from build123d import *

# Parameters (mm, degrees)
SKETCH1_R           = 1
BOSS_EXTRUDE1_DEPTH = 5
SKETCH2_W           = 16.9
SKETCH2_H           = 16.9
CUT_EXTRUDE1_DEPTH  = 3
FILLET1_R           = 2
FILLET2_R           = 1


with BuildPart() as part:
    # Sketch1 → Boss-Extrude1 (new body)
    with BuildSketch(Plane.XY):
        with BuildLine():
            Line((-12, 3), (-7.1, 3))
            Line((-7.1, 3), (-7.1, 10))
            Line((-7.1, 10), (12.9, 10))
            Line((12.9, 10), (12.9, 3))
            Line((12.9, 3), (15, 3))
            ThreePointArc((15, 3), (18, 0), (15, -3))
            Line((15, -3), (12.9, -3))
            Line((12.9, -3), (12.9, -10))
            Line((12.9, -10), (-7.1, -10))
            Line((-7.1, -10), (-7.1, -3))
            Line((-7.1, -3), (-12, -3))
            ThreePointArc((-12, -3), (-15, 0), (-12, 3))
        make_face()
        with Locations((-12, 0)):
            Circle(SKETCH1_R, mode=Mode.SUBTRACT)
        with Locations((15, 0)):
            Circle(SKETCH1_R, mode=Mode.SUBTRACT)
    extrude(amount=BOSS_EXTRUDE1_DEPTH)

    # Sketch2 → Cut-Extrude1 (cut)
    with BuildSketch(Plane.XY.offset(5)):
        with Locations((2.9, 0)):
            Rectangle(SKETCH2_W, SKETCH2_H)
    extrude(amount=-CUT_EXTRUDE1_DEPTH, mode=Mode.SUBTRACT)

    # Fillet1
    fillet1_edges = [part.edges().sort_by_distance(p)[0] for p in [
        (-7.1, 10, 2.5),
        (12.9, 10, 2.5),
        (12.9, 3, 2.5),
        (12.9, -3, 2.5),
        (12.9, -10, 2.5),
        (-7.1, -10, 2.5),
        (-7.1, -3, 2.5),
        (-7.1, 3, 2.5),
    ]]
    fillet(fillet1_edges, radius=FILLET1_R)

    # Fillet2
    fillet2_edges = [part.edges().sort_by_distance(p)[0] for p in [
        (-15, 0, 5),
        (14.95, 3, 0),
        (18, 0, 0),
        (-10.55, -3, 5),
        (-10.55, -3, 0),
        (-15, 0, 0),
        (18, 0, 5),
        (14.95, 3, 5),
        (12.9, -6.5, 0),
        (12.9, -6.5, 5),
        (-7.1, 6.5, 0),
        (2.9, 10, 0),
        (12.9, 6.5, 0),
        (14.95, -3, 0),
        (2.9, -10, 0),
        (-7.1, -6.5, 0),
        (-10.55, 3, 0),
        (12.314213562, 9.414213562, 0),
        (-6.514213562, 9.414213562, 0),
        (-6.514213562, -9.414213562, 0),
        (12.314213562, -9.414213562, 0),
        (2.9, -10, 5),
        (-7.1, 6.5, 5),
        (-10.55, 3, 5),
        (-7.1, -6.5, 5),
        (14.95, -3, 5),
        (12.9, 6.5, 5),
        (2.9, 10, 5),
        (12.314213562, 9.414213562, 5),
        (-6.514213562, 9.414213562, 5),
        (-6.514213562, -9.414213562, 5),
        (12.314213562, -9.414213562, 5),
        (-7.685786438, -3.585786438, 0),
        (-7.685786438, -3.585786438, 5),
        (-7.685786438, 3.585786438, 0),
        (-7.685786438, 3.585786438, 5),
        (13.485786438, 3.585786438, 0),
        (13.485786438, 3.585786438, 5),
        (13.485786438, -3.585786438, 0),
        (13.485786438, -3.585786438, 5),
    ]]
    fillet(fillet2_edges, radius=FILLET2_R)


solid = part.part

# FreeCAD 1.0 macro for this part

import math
import FreeCAD as App
import Part
import Sketcher
from FreeCAD import Vector


def edges_at(feature, points):
    """Names of the edges that pass closest to the given points."""
    edges = feature.Shape.Edges
    near = lambda p: min(range(len(edges)), key=lambda i: edges[i].distToShape(Part.Vertex(*p))[0])
    return sorted({f"Edge{near(p) + 1}" for p in points})

doc = App.newDocument("Part")
params = doc.addObject("Spreadsheet::Sheet", "Params")
for row, (alias, value) in enumerate([
    ("sketch1_diameter", "2 mm"),
    ("sketch1_radius", "3 mm"),
    ("sketch1_width", "20 mm"),
    ("sketch1_height", "7 mm"),
    ("sketch1_width2", "4.9 mm"),
    ("pad1_length", "5 mm"),
    ("sketch2_width", "16.9 mm"),
    ("pocket1_length", "3 mm"),
    ("fillet_radius", "2 mm"),
    ("fillet2_radius", "1 mm"),
], start=1):
    params.set(f"A{row}", alias)
    params.set(f"B{row}", "=" + value)
    params.setAlias(f"B{row}", alias)

body = doc.addObject("PartDesign::Body", "Body")

# Sketch on XY plane
sketch1 = doc.addObject("Sketcher::SketchObject", "Sketch")
body.addObject(sketch1)
sketch1.AttachmentSupport = (doc.XY_Plane, [""])
sketch1.MapMode = "FlatFace"
sketch1.addGeometry(Part.LineSegment(Vector(-7.1, 3, 0), Vector(-12, 3, 0)), False)
sketch1.addGeometry(Part.ArcOfCircle(Part.Circle(Vector(-12, 0, 0), Vector(0, 0, 1), 3), math.radians(90), math.radians(270)), False)
sketch1.addGeometry(Part.LineSegment(Vector(-12, -3, 0), Vector(-7.1, -3, 0)), False)
sketch1.addGeometry(Part.LineSegment(Vector(-7.1, -3, 0), Vector(-7.1, -10, 0)), False)
sketch1.addGeometry(Part.LineSegment(Vector(-7.1, -10, 0), Vector(12.9, -10, 0)), False)
sketch1.addGeometry(Part.LineSegment(Vector(12.9, -10, 0), Vector(12.9, -3, 0)), False)
sketch1.addGeometry(Part.LineSegment(Vector(12.9, -3, 0), Vector(15, -3, 0)), False)
sketch1.addGeometry(Part.ArcOfCircle(Part.Circle(Vector(15, 0, 0), Vector(0, 0, 1), 3), math.radians(-90), math.radians(90)), False)
sketch1.addGeometry(Part.LineSegment(Vector(15, 3, 0), Vector(12.9, 3, 0)), False)
sketch1.addGeometry(Part.LineSegment(Vector(12.9, 3, 0), Vector(12.9, 10, 0)), False)
sketch1.addGeometry(Part.LineSegment(Vector(12.9, 10, 0), Vector(-7.1, 10, 0)), False)
sketch1.addGeometry(Part.LineSegment(Vector(-7.1, 10, 0), Vector(-7.1, 3, 0)), False)
sketch1.addGeometry(Part.Circle(Vector(15, 0, 0), Vector(0, 0, 1), 1), False)
sketch1.addGeometry(Part.Circle(Vector(-12, 0, 0), Vector(0, 0, 1), 1), False)
sketch1.addConstraint(Sketcher.Constraint("Tangent", 0, 2, 1, 1))
sketch1.addConstraint(Sketcher.Constraint("Tangent", 1, 2, 2, 1))
sketch1.addConstraint(Sketcher.Constraint("Coincident", 2, 2, 3, 1))
sketch1.addConstraint(Sketcher.Constraint("Coincident", 3, 2, 4, 1))
sketch1.addConstraint(Sketcher.Constraint("Coincident", 4, 2, 5, 1))
sketch1.addConstraint(Sketcher.Constraint("Coincident", 5, 2, 6, 1))
sketch1.addConstraint(Sketcher.Constraint("Tangent", 6, 2, 7, 1))
sketch1.addConstraint(Sketcher.Constraint("Tangent", 7, 2, 8, 1))
sketch1.addConstraint(Sketcher.Constraint("Coincident", 8, 2, 9, 1))
sketch1.addConstraint(Sketcher.Constraint("Coincident", 9, 2, 10, 1))
sketch1.addConstraint(Sketcher.Constraint("Coincident", 10, 2, 11, 1))
sketch1.addConstraint(Sketcher.Constraint("Coincident", 11, 2, 0, 1))
sketch1.addConstraint(Sketcher.Constraint("Horizontal", 0))
sketch1.addConstraint(Sketcher.Constraint("Horizontal", 2))
sketch1.addConstraint(Sketcher.Constraint("Vertical", 3))
sketch1.addConstraint(Sketcher.Constraint("Horizontal", 4))
sketch1.addConstraint(Sketcher.Constraint("Vertical", 5))
sketch1.addConstraint(Sketcher.Constraint("Horizontal", 6))
sketch1.addConstraint(Sketcher.Constraint("Horizontal", 8))
sketch1.addConstraint(Sketcher.Constraint("Vertical", 9))
sketch1.addConstraint(Sketcher.Constraint("Horizontal", 10))
sketch1.addConstraint(Sketcher.Constraint("Vertical", 11))
sketch1.addConstraint(Sketcher.Constraint("Coincident", 12, 3, 7, 3))
sketch1.addConstraint(Sketcher.Constraint("Coincident", 13, 3, 1, 3))
sketch1.addConstraint(Sketcher.Constraint("Equal", 1, 7))
sketch1.addConstraint(Sketcher.Constraint("Equal", 12, 13))
sketch1.addConstraint(Sketcher.Constraint("Symmetric", 5, 2, 8, 2, -1))
sketch1.addConstraint(Sketcher.Constraint("Symmetric", 3, 2, 10, 2, -1))
sketch1.addConstraint(Sketcher.Constraint("PointOnObject", 1, 3, -1))
sketch1.addConstraint(Sketcher.Constraint("Diameter", 12, 2.0))
sketch1.addConstraint(Sketcher.Constraint("Radius", 1, 3.0))
sketch1.addConstraint(Sketcher.Constraint("DistanceX", 4, 1, 4, 2, 20.0))
sketch1.addConstraint(Sketcher.Constraint("DistanceY", 3, 2, 3, 1, 7.0))
sketch1.addConstraint(Sketcher.Constraint("DistanceX", 0, 2, 0, 1, 4.9))
sketch1.addConstraint(Sketcher.Constraint("DistanceX", 6, 1, 6, 2, 2.1))
sketch1.addConstraint(Sketcher.Constraint("DistanceX", 1, 3, -1, 1, 12.0))
sketch1.setExpression("Constraints[29]", "Params.sketch1_diameter")
sketch1.setExpression("Constraints[30]", "Params.sketch1_radius")
sketch1.setExpression("Constraints[31]", "Params.sketch1_width")
sketch1.setExpression("Constraints[32]", "Params.sketch1_height")
sketch1.setExpression("Constraints[33]", "Params.sketch1_width2")
pad1 = doc.addObject("PartDesign::Pad", "Pad")
body.addObject(pad1)
pad1.Profile = sketch1
pad1.setExpression("Length", "Params.pad1_length")

# Sketch on XY plane
sketch2 = doc.addObject("Sketcher::SketchObject", "Sketch001")
body.addObject(sketch2)
sketch2.AttachmentSupport = (doc.XY_Plane, [""])
sketch2.MapMode = "FlatFace"
sketch2.AttachmentOffset = App.Placement(Vector(0, 0, 5), App.Rotation())
sketch2.addGeometry(Part.LineSegment(Vector(-5.55, 8.45, 0), Vector(-5.55, -8.45, 0)), False)
sketch2.addGeometry(Part.LineSegment(Vector(-5.55, -8.45, 0), Vector(11.35, -8.45, 0)), False)
sketch2.addGeometry(Part.LineSegment(Vector(11.35, -8.45, 0), Vector(11.35, 8.45, 0)), False)
sketch2.addGeometry(Part.LineSegment(Vector(11.35, 8.45, 0), Vector(-5.55, 8.45, 0)), False)
sketch2.addConstraint(Sketcher.Constraint("Coincident", 0, 2, 1, 1))
sketch2.addConstraint(Sketcher.Constraint("Coincident", 1, 2, 2, 1))
sketch2.addConstraint(Sketcher.Constraint("Coincident", 2, 2, 3, 1))
sketch2.addConstraint(Sketcher.Constraint("Coincident", 3, 2, 0, 1))
sketch2.addConstraint(Sketcher.Constraint("Vertical", 0))
sketch2.addConstraint(Sketcher.Constraint("Horizontal", 1))
sketch2.addConstraint(Sketcher.Constraint("Vertical", 2))
sketch2.addConstraint(Sketcher.Constraint("Horizontal", 3))
sketch2.addConstraint(Sketcher.Constraint("Equal", 3, 0))
sketch2.addConstraint(Sketcher.Constraint("DistanceX", 1, 1, 1, 2, 16.9))
sketch2.addConstraint(Sketcher.Constraint("DistanceX", 0, 2, -1, 1, 5.55))
sketch2.addConstraint(Sketcher.Constraint("DistanceY", 0, 2, -1, 1, 8.45))
sketch2.setExpression("Constraints[9]", "Params.sketch2_width")
pocket1 = doc.addObject("PartDesign::Pocket", "Pocket")
body.addObject(pocket1)
pocket1.Profile = sketch2
pocket1.setExpression("Length", "Params.pocket1_length")
doc.recompute()

fillet = doc.addObject("PartDesign::Fillet", "Fillet")
body.addObject(fillet)
fillet.Base = (pocket1, edges_at(pocket1, [
    (-7.1, 10, 2.5),
    (12.9, 10, 2.5),
    (12.9, 3, 2.5),
    (12.9, -3, 2.5),
    (12.9, -10, 2.5),
    (-7.1, -10, 2.5),
    (-7.1, -3, 2.5),
    (-7.1, 3, 2.5),
]))
fillet.setExpression("Radius", "Params.fillet_radius")
doc.recompute()

fillet2 = doc.addObject("PartDesign::Fillet", "Fillet001")
body.addObject(fillet2)
fillet2.Base = (fillet, edges_at(fillet, [
    (-15, 0, 5),
    (14.95, 3, 0),
    (18, 0, 0),
    (-10.55, -3, 5),
    (-10.55, -3, 0),
    (-15, 0, 0),
    (18, 0, 5),
    (14.95, 3, 5),
    (12.9, -6.5, 0),
    (12.9, -6.5, 5),
    (-7.1, 6.5, 0),
    (2.9, 10, 0),
    (12.9, 6.5, 0),
    (14.95, -3, 0),
    (2.9, -10, 0),
    (-7.1, -6.5, 0),
    (-10.55, 3, 0),
    (12.314, 9.414, 0),
    (-6.514, 9.414, 0),
    (-6.514, -9.414, 0),
    (12.314, -9.414, 0),
    (2.9, -10, 5),
    (-7.1, 6.5, 5),
    (-10.55, 3, 5),
    (-7.1, -6.5, 5),
    (14.95, -3, 5),
    (12.9, 6.5, 5),
    (2.9, 10, 5),
    (12.314, 9.414, 5),
    (-6.514, 9.414, 5),
    (-6.514, -9.414, 5),
    (12.314, -9.414, 5),
    (-7.686, -3.586, 0),
    (-7.686, -3.586, 5),
    (-7.686, 3.586, 0),
    (-7.686, 3.586, 5),
    (13.486, 3.586, 0),
    (13.486, 3.586, 5),
    (13.486, -3.586, 0),
    (13.486, -3.586, 5),
]))
fillet2.setExpression("Radius", "Params.fillet2_radius")

doc.recompute()
